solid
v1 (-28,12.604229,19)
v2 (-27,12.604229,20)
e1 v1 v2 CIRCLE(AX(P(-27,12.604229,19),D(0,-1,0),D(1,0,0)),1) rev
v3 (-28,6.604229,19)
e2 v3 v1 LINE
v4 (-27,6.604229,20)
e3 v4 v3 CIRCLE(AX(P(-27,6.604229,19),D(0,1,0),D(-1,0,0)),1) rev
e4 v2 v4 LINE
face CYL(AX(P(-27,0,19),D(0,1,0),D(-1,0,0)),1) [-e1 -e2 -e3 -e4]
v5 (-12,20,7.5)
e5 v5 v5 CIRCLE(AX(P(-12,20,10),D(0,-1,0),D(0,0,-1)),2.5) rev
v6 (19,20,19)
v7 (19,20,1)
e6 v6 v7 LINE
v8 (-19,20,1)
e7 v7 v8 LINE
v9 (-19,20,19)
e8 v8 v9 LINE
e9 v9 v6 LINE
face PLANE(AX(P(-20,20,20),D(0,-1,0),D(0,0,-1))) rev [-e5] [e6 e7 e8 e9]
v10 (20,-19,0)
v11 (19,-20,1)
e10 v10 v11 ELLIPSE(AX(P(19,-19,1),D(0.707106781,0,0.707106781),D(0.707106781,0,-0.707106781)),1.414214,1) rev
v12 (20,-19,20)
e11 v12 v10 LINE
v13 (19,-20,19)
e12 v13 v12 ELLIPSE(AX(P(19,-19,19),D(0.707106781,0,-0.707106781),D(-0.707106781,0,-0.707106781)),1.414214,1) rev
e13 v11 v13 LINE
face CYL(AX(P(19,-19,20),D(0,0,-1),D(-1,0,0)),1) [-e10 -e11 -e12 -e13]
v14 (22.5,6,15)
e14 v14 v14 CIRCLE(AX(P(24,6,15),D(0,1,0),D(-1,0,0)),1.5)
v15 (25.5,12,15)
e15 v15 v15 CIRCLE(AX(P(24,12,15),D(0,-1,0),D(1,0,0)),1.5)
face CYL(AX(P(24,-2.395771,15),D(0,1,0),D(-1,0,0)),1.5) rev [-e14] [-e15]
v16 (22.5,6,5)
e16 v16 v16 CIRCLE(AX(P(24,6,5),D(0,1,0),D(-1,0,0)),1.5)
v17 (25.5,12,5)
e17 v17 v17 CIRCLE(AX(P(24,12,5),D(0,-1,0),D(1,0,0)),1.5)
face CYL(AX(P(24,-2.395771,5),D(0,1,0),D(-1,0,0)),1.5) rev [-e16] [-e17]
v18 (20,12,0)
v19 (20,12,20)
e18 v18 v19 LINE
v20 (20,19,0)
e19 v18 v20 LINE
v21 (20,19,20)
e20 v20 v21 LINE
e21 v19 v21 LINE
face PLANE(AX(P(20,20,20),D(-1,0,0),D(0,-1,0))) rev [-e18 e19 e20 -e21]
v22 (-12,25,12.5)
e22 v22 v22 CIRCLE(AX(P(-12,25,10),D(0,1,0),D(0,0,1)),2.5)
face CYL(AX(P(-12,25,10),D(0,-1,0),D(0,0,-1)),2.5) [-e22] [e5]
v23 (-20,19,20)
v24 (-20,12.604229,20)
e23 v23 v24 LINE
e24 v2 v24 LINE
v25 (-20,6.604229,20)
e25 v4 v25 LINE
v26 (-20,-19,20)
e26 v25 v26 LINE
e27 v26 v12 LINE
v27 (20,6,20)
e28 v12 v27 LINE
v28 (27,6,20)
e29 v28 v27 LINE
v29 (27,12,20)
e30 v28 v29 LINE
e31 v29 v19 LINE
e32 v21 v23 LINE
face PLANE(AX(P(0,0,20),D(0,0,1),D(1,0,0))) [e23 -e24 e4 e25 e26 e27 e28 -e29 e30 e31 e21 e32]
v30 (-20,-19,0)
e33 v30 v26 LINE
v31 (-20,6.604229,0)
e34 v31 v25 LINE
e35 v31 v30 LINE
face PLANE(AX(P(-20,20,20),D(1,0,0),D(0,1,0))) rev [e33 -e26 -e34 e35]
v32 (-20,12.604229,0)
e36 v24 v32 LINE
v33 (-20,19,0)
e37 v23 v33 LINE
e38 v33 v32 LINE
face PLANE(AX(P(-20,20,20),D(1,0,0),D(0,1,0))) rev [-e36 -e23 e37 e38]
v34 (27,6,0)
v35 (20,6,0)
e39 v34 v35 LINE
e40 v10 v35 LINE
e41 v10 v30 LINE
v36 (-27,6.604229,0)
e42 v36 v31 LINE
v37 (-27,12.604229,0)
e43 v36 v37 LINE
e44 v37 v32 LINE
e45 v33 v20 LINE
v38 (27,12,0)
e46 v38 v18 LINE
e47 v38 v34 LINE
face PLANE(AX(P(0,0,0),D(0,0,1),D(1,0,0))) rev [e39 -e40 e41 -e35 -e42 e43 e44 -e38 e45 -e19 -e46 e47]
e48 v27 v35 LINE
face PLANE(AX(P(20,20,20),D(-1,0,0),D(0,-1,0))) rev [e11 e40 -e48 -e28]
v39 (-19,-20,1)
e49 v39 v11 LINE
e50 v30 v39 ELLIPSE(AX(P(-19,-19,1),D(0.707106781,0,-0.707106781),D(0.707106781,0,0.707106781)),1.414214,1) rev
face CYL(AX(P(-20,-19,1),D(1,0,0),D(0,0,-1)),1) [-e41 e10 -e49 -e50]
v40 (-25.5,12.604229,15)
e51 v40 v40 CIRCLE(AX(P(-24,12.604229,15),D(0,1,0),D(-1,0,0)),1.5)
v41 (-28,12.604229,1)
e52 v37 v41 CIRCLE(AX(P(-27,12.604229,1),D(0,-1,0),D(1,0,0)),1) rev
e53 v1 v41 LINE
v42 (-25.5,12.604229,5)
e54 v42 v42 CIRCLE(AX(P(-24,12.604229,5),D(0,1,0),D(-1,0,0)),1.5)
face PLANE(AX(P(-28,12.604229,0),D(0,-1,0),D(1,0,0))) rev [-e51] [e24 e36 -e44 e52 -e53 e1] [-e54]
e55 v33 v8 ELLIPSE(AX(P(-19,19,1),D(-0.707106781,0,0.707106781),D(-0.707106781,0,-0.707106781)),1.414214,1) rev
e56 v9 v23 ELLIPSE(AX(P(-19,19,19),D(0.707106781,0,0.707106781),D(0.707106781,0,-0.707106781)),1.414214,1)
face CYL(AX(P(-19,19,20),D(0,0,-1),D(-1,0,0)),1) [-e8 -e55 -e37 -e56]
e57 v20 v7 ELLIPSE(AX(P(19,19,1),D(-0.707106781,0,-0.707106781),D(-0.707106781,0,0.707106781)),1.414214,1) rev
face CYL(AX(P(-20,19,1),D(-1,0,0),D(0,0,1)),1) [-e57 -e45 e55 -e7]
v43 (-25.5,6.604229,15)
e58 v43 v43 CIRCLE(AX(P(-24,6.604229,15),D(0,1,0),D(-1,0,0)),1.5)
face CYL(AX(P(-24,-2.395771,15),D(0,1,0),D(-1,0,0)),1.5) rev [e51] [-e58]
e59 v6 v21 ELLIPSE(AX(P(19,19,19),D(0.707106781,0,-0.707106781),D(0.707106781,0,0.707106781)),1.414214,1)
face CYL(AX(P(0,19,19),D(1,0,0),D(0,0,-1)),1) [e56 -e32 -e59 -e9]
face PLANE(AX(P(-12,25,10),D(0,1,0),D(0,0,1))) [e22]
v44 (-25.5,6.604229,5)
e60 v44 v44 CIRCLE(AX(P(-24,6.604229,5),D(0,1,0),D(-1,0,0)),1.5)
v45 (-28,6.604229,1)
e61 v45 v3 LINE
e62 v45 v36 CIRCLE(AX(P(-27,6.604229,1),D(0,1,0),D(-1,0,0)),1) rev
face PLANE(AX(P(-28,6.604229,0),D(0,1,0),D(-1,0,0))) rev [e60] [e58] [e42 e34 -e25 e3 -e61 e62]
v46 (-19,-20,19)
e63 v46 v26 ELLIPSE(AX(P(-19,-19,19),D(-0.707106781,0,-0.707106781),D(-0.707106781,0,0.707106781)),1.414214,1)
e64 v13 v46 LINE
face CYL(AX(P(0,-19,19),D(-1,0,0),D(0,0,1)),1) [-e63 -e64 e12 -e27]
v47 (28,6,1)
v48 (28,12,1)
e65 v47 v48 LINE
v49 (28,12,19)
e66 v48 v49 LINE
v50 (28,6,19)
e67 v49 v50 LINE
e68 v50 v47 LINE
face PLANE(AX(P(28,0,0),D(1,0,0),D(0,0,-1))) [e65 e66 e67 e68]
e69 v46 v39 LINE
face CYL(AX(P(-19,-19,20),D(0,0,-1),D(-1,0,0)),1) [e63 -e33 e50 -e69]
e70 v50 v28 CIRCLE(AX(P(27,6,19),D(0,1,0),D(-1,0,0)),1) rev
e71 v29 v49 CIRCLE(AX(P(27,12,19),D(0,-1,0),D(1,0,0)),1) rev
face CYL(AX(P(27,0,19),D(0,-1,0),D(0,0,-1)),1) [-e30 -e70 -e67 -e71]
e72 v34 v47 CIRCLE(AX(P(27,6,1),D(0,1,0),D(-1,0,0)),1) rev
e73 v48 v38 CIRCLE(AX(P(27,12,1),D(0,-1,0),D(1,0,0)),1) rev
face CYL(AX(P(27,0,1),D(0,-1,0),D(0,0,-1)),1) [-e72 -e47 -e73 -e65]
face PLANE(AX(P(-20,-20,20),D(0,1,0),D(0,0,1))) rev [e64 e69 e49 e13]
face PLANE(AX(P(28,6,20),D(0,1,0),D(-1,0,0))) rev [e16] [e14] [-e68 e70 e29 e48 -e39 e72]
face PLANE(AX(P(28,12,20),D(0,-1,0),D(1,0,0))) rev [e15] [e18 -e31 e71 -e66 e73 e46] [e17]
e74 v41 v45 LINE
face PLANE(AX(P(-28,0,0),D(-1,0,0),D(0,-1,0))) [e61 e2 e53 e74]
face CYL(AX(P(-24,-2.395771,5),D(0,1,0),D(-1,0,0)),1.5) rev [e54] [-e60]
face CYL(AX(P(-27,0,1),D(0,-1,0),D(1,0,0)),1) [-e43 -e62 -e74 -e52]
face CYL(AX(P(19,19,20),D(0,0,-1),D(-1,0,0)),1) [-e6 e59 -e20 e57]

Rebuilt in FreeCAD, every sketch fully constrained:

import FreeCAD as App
import Part
import Sketcher
from FreeCAD import Vector
Q = App.Units.Quantity


def edges_at(feature, points):
    """Names of the edges that pass closest to the given points."""
    edges = feature.Shape.Edges
    near = lambda p: min(range(len(edges)), key=lambda i: edges[i].distToShape(Part.Vertex(*p))[0])
    return sorted({f"Edge{near(p) + 1}" for p in points})

doc = App.newDocument("Part")
body = doc.addObject("PartDesign::Body", "Body")

sketch1 = body.newObject("Sketcher::SketchObject", "Sketch")
sketch1.AttachmentSupport = (doc.getObject("XY_Plane"), [""])
sketch1.MapMode = "FlatFace"
sketch1.addGeometry([
    Part.LineSegment(Vector(-20, 20, 0), Vector(-20, -20, 0)),
    Part.LineSegment(Vector(-20, -20, 0), Vector(20, -20, 0)),
    Part.LineSegment(Vector(20, -20, 0), Vector(20, 20, 0)),
    Part.LineSegment(Vector(20, 20, 0), Vector(-20, 20, 0)),
], False)
sketch1.addConstraint([
    Sketcher.Constraint("Coincident", 0, 2, 1, 1),
    Sketcher.Constraint("Coincident", 1, 2, 2, 1),
    Sketcher.Constraint("Coincident", 2, 2, 3, 1),
    Sketcher.Constraint("Coincident", 3, 2, 0, 1),
    Sketcher.Constraint("Vertical", 0),
    Sketcher.Constraint("Horizontal", 1),
    Sketcher.Constraint("Vertical", 2),
    Sketcher.Constraint("Horizontal", 3),
    Sketcher.Constraint("Symmetric", 0, 2, 2, 2, -1, 1),
    Sketcher.Constraint("Equal", 3, 0),
    Sketcher.Constraint("DistanceX", 1, 1, 1, 2, Q("40 mm")),
])
pad1 = body.newObject("PartDesign::Pad", "Pad")
pad1.Profile = sketch1
pad1.Length = 20

sketch2 = body.newObject("Sketcher::SketchObject", "Sketch001")
sketch2.AttachmentSupport = (doc.getObject("YZ_Plane"), [""])
sketch2.MapMode = "FlatFace"
sketch2.AttachmentOffset = App.Placement(Vector(0, 0, 20), App.Rotation())
sketch2.addGeometry([
    Part.LineSegment(Vector(12, 20, 0), Vector(6, 20, 0)),
    Part.LineSegment(Vector(6, 20, 0), Vector(6, 0, 0)),
    Part.LineSegment(Vector(6, 0, 0), Vector(12, 0, 0)),
    Part.LineSegment(Vector(12, 0, 0), Vector(12, 20, 0)),
], False)
sketch2.addConstraint([
    Sketcher.Constraint("Coincident", 0, 2, 1, 1),
    Sketcher.Constraint("Coincident", 1, 2, 2, 1),
    Sketcher.Constraint("Coincident", 2, 2, 3, 1),
    Sketcher.Constraint("Coincident", 3, 2, 0, 1),
    Sketcher.Constraint("Horizontal", 0),
    Sketcher.Constraint("Vertical", 1),
    Sketcher.Constraint("Horizontal", 2),
    Sketcher.Constraint("Vertical", 3),
    Sketcher.Constraint("PointOnObject", 1, 2, -1),
    Sketcher.Constraint("DistanceX", 0, 2, 0, 1, Q("6 mm")),
    Sketcher.Constraint("DistanceY", 1, 2, 1, 1, Q("20 mm")),
    Sketcher.Constraint("DistanceX", -1, 1, 0, 2, Q("6 mm")),
])
pad2 = body.newObject("PartDesign::Pad", "Pad001")
pad2.Profile = sketch2
pad2.Length = 8

sketch3 = body.newObject("Sketcher::SketchObject", "Sketch002")
sketch3.AttachmentSupport = (doc.getObject("YZ_Plane"), [""])
sketch3.MapMode = "FlatFace"
sketch3.AttachmentOffset = App.Placement(Vector(0, 0, -20), App.Rotation())
sketch3.addGeometry([
    Part.LineSegment(Vector(13, 0, 0), Vector(7, 0, 0)),
    Part.LineSegment(Vector(7, 0, 0), Vector(7, 20, 0)),
    Part.LineSegment(Vector(7, 20, 0), Vector(13, 20, 0)),
    Part.LineSegment(Vector(13, 20, 0), Vector(13, 0, 0)),
], False)
sketch3.addConstraint([
    Sketcher.Constraint("Coincident", 0, 2, 1, 1),
    Sketcher.Constraint("Coincident", 1, 2, 2, 1),
    Sketcher.Constraint("Coincident", 2, 2, 3, 1),
    Sketcher.Constraint("Coincident", 3, 2, 0, 1),
    Sketcher.Constraint("Horizontal", 0),
    Sketcher.Constraint("Vertical", 1),
    Sketcher.Constraint("Horizontal", 2),
    Sketcher.Constraint("Vertical", 3),
    Sketcher.Constraint("PointOnObject", 0, 2, -1),
    Sketcher.Constraint("DistanceX", 0, 2, 0, 1, Q("6 mm")),
    Sketcher.Constraint("DistanceY", 1, 1, 1, 2, Q("20 mm")),
    Sketcher.Constraint("DistanceX", -1, 1, 0, 2, Q("6.604229 mm")),
])
pad3 = body.newObject("PartDesign::Pad", "Pad002")
pad3.Profile = sketch3
pad3.Length = 8
pad3.Reversed = True

sketch4 = body.newObject("Sketcher::SketchObject", "Sketch003")
sketch4.AttachmentSupport = (doc.getObject("XZ_Plane"), [""])
sketch4.MapMode = "FlatFace"
sketch4.AttachmentOffset = App.Placement(Vector(0, 0, -20), App.Rotation())
sketch4.addGeometry(Part.Circle(Vector(-12, 10, 0), Vector(0, 0, 1), 2.5), False)
sketch4.addConstraint([
    Sketcher.Constraint("Diameter", 0, Q("5 mm")),
    Sketcher.Constraint("DistanceX", 0, 3, -1, 1, Q("12 mm")),
    Sketcher.Constraint("DistanceY", -1, 1, 0, 3, Q("10 mm")),
])
pad4 = body.newObject("PartDesign::Pad", "Pad003")
pad4.Profile = sketch4
pad4.Length = 5
pad4.Reversed = True

sketch5 = body.newObject("Sketcher::SketchObject", "Sketch004")
sketch5.AttachmentSupport = (doc.getObject("XZ_Plane"), [""])
sketch5.MapMode = "FlatFace"
sketch5.AttachmentOffset = App.Placement(Vector(0, 0, -12.604229), App.Rotation())
sketch5.addGeometry([
    Part.Circle(Vector(-24, 5, 0), Vector(0, 0, 1), 1.5),
    Part.Circle(Vector(-24, 15, 0), Vector(0, 0, 1), 1.5),
    Part.Circle(Vector(24, 15, 0), Vector(0, 0, 1), 1.5),
    Part.Circle(Vector(24, 5, 0), Vector(0, 0, 1), 1.5),
], False)
sketch5.addConstraint([
    Sketcher.Constraint("Equal", 0, 1),
    Sketcher.Constraint("Equal", 1, 2),
    Sketcher.Constraint("Equal", 2, 3),
    Sketcher.Constraint("Symmetric", 1, 3, 2, 3, -2),
    Sketcher.Constraint("Symmetric", 0, 3, 3, 3, -2),
    Sketcher.Constraint("Vertical", 0, 3, 1, 3),
    Sketcher.Constraint("Diameter", 0, Q("3 mm")),
    Sketcher.Constraint("DistanceX", 0, 3, -1, 1, Q("24 mm")),
    Sketcher.Constraint("DistanceY", -1, 1, 0, 3, Q("5 mm")),
    Sketcher.Constraint("DistanceY", -1, 1, 1, 3, Q("15 mm")),
])
pocket1 = body.newObject("PartDesign::Pocket", "Pocket")
pocket1.Profile = sketch5
pocket1.Length = 15
pocket1.Reversed = True
doc.recompute()

fillet = body.newObject("PartDesign::Fillet", "Fillet")
fillet.Base = (pocket1, edges_at(pocket1, [
    (0, 20, 0),
    (-20, 20, 10),
    (20, 20, 10),
    (0, 20, 20),
]))
fillet.Radius = 1
doc.recompute()

fillet2 = body.newObject("PartDesign::Fillet", "Fillet001")
fillet2.Base = (fillet, edges_at(fillet, [
    (0, -20, 20),
    (0, -20, 0),
    (20, -20, 10),
    (-20, -20, 10),
]))
fillet2.Radius = 1
doc.recompute()

fillet3 = body.newObject("PartDesign::Fillet", "Fillet002")
fillet3.Base = (fillet2, edges_at(fillet2, [(28, 9, 20)]))
fillet3.Radius = 1
doc.recompute()

fillet4 = body.newObject("PartDesign::Fillet", "Fillet003")
fillet4.Base = (fillet3, edges_at(fillet3, [(-28, 9.604, 0)]))
fillet4.Radius = 1
doc.recompute()

fillet5 = body.newObject("PartDesign::Fillet", "Fillet004")
fillet5.Base = (fillet4, edges_at(fillet4, [(28, 9, 0), (-28, 9.604, 20)]))
fillet5.Radius = 1

doc.recompute()
